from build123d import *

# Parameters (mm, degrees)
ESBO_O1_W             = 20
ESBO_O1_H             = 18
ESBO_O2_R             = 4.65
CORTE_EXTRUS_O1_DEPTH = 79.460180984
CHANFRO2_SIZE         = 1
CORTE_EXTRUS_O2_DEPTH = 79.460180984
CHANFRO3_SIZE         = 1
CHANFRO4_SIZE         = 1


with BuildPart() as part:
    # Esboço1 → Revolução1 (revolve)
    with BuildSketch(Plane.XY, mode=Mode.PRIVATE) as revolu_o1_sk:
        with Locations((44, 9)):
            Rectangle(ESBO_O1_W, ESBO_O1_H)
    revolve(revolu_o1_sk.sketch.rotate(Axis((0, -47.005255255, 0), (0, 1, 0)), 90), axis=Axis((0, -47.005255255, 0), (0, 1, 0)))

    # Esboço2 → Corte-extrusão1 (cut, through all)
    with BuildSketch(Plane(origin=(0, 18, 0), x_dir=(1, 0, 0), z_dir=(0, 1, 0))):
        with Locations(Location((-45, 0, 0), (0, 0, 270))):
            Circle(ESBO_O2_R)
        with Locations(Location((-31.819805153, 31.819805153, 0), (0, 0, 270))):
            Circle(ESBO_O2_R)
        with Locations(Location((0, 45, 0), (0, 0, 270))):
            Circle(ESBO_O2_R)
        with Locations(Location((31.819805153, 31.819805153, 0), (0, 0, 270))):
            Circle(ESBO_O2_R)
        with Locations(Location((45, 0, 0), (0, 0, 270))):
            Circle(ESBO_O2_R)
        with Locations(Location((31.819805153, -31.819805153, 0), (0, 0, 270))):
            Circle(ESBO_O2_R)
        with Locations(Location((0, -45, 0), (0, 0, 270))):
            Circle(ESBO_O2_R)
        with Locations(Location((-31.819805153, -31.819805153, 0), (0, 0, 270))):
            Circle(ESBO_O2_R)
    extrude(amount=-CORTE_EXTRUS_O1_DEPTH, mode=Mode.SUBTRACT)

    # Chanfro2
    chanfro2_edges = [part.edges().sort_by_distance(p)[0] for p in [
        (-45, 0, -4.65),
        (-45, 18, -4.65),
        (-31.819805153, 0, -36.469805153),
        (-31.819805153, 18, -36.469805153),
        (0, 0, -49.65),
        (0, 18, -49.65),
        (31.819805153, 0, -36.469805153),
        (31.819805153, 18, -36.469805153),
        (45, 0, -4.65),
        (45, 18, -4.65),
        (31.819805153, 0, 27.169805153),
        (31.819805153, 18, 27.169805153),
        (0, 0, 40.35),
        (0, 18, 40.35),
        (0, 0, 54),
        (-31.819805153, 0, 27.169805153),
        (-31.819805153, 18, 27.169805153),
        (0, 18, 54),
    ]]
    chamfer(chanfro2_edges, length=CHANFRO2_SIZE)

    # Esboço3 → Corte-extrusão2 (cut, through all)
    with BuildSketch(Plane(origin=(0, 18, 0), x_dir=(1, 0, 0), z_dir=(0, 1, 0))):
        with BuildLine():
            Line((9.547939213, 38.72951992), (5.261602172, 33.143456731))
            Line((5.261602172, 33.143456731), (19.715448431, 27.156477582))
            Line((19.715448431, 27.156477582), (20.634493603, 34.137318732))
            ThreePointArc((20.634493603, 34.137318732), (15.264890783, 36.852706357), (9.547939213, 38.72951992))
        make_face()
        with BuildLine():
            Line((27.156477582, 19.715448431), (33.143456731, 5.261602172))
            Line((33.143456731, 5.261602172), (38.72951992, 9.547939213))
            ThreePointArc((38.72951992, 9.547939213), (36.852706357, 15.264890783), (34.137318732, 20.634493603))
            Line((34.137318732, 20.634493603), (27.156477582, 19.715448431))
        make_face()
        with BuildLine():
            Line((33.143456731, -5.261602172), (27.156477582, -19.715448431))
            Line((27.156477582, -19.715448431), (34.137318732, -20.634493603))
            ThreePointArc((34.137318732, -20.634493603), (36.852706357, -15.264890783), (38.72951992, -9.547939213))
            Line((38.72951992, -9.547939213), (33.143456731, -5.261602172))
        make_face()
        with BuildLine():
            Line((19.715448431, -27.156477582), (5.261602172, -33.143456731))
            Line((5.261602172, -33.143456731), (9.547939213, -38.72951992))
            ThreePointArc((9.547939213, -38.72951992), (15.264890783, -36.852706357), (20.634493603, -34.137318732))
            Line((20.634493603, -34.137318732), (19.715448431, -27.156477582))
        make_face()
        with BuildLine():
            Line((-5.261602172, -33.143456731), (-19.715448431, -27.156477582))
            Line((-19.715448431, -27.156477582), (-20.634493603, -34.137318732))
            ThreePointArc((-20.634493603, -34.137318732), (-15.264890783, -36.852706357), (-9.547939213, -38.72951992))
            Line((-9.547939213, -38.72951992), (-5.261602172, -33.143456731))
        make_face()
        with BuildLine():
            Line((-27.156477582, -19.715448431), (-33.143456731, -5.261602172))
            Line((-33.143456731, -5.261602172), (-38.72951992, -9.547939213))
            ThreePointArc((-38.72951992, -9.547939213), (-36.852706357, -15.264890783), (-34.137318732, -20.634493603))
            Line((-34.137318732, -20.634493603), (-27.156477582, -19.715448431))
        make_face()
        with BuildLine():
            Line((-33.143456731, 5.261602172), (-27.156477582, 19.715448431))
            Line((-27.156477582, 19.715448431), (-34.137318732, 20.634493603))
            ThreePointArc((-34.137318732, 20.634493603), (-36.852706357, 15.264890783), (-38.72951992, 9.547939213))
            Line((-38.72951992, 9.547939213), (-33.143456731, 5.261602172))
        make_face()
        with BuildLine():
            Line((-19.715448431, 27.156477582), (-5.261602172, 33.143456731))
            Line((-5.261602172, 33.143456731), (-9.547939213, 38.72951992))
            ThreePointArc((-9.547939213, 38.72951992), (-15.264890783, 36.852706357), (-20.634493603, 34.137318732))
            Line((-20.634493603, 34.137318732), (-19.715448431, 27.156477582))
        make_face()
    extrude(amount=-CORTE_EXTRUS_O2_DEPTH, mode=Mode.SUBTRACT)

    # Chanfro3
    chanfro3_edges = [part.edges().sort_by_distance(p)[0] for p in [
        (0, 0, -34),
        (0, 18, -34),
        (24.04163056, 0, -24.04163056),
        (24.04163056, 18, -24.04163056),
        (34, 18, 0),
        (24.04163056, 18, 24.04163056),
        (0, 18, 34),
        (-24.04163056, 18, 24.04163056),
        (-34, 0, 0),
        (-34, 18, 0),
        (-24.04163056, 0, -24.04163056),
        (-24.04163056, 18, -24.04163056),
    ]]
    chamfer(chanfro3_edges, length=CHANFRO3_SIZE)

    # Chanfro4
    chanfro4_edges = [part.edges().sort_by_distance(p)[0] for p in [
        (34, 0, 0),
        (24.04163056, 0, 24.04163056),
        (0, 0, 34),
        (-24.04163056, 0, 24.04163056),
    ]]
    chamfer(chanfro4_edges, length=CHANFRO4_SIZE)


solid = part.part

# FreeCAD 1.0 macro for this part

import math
import FreeCAD as App
import Part
import Sketcher

V = App.Vector
Q = App.Units.Quantity


def edges_at(feature, points):
    """Names of the edges that pass closest to the given points."""
    edges = feature.Shape.Edges
    near = lambda p: min(range(len(edges)), key=lambda i: edges[i].distToShape(Part.Vertex(*p))[0])
    return sorted({f"Edge{near(p) + 1}" for p in points})

doc = App.newDocument("Part")
body = doc.addObject("PartDesign::Body", "Body")

sketch1 = body.newObject("Sketcher::SketchObject", "Sketch")
sketch1.AttachmentSupport = (doc.getObject("XY_Plane"), [""])
sketch1.MapMode = "FlatFace"
sketch1.addGeometry(Part.LineSegment(V(34, 18, 0), V(34, 0, 0)), False)
sketch1.addGeometry(Part.LineSegment(V(34, 0, 0), V(54, 0, 0)), False)
sketch1.addGeometry(Part.LineSegment(V(54, 0, 0), V(54, 18, 0)), False)
sketch1.addGeometry(Part.LineSegment(V(54, 18, 0), V(34, 18, 0)), False)
sketch1.addConstraint(Sketcher.Constraint("Coincident", 0, 2, 1, 1))
sketch1.addConstraint(Sketcher.Constraint("Coincident", 1, 2, 2, 1))
sketch1.addConstraint(Sketcher.Constraint("Coincident", 2, 2, 3, 1))
sketch1.addConstraint(Sketcher.Constraint("Coincident", 3, 2, 0, 1))
sketch1.addConstraint(Sketcher.Constraint("Vertical", 0))
sketch1.addConstraint(Sketcher.Constraint("Horizontal", 1))
sketch1.addConstraint(Sketcher.Constraint("Vertical", 2))
sketch1.addConstraint(Sketcher.Constraint("Horizontal", 3))
sketch1.addConstraint(Sketcher.Constraint("PointOnObject", 0, 2, -1))
sketch1.addConstraint(Sketcher.Constraint("DistanceX", 1, 1, 1, 2, Q("20 mm")))
sketch1.addConstraint(Sketcher.Constraint("DistanceY", 0, 2, 0, 1, Q("18 mm")))
sketch1.addConstraint(Sketcher.Constraint("DistanceX", -1, 1, 0, 2, Q("34 mm")))
revolution = body.newObject("PartDesign::Revolution", "Revolution")
revolution.Profile = sketch1
revolution.ReferenceAxis = (sketch1, ["V_Axis"])
revolution.Angle = 360

sketch2 = body.newObject("Sketcher::SketchObject", "Sketch001")
sketch2.AttachmentSupport = (doc.getObject("XZ_Plane"), [""])
sketch2.MapMode = "FlatFace"
sketch2.AttachmentOffset = App.Placement(V(0, 0, -18), App.Rotation())
sketch2.addGeometry(Part.Circle(V(-45, 0, 0), V(0, 0, 1), 4.65), False)
sketch2.addGeometry(Part.Circle(V(-31.819805, -31.819805, 0), V(0, 0, 1), 4.65), False)
sketch2.addGeometry(Part.Circle(V(0, -45, 0), V(0, 0, 1), 4.65), False)
sketch2.addGeometry(Part.Circle(V(31.819805, -31.819805, 0), V(0, 0, 1), 4.65), False)
sketch2.addGeometry(Part.Circle(V(45, 0, 0), V(0, 0, 1), 4.65), False)
sketch2.addGeometry(Part.Circle(V(31.819805, 31.819805, 0), V(0, 0, 1), 4.65), False)
sketch2.addGeometry(Part.Circle(V(0, 45, 0), V(0, 0, 1), 4.65), False)
sketch2.addGeometry(Part.Circle(V(-31.819805, 31.819805, 0), V(0, 0, 1), 4.65), False)
sketch2.addConstraint(Sketcher.Constraint("Equal", 0, 1))
sketch2.addConstraint(Sketcher.Constraint("Equal", 1, 2))
sketch2.addConstraint(Sketcher.Constraint("Equal", 2, 3))
sketch2.addConstraint(Sketcher.Constraint("Equal", 3, 4))
sketch2.addConstraint(Sketcher.Constraint("Equal", 4, 5))
sketch2.addConstraint(Sketcher.Constraint("Equal", 5, 6))
sketch2.addConstraint(Sketcher.Constraint("Equal", 6, 7))
sketch2.addConstraint(Sketcher.Constraint("Symmetric", 0, 3, 4, 3, -1, 1))
sketch2.addConstraint(Sketcher.Constraint("Symmetric", 1, 3, 5, 3, -1, 1))
sketch2.addConstraint(Sketcher.Constraint("Symmetric", 2, 3, 6, 3, -1, 1))
sketch2.addConstraint(Sketcher.Constraint("Symmetric", 3, 3, 7, 3, -1, 1))
sketch2.addConstraint(Sketcher.Constraint("Symmetric", 1, 3, 3, 3, -2))
sketch2.addConstraint(Sketcher.Constraint("PointOnObject", 0, 3, -1))
sketch2.addConstraint(Sketcher.Constraint("PointOnObject", 2, 3, -2))
sketch2.addConstraint(Sketcher.Constraint("Diameter", 0, Q("9.3 mm")))
sketch2.addConstraint(Sketcher.Constraint("DistanceX", 0, 3, -1, 1, Q("45 mm")))
sketch2.addConstraint(Sketcher.Constraint("DistanceY", 2, 3, -1, 1, Q("45 mm")))
sketch2.addConstraint(Sketcher.Constraint("DistanceX", 1, 3, 3, 3, Q("63.63961 mm")))
sketch2.addConstraint(Sketcher.Constraint("DistanceY", 3, 3, 5, 3, Q("63.63961 mm")))
pocket1 = body.newObject("PartDesign::Pocket", "Pocket")
pocket1.Profile = sketch2
pocket1.Type = "ThroughAll"
pocket1.Reversed = True
doc.recompute()

chamfer = body.newObject("PartDesign::Chamfer", "Chamfer")
chamfer.Base = (pocket1, edges_at(pocket1, [
    (-45, 0, -4.65),
    (-45, 18, -4.65),
    (-31.82, 0, -36.47),
    (-31.82, 18, -36.47),
    (0, 0, -49.65),
    (0, 18, -49.65),
    (31.82, 0, -36.47),
    (31.82, 18, -36.47),
    (45, 0, -4.65),
    (45, 18, -4.65),
    (31.82, 0, 27.17),
    (31.82, 18, 27.17),
    (0, 0, 40.35),
    (0, 18, 40.35),
    (0, 0, 54),
    (-31.82, 0, 27.17),
    (-31.82, 18, 27.17),
    (0, 18, 54),
]))
chamfer.Size = 1

sketch3 = body.newObject("Sketcher::SketchObject", "Sketch002")
sketch3.AttachmentSupport = (doc.getObject("XZ_Plane"), [""])
sketch3.MapMode = "FlatFace"
sketch3.AttachmentOffset = App.Placement(V(0, 0, -18), App.Rotation())
sketch3.addGeometry(Part.LineSegment(V(9.547939, -38.72952, 0), V(5.261602, -33.143457, 0)), False)
sketch3.addGeometry(Part.LineSegment(V(5.261602, -33.143457, 0), V(19.715448, -27.156478, 0)), False)
sketch3.addGeometry(Part.LineSegment(V(19.715448, -27.156478, 0), V(20.634494, -34.137319, 0)), False)
sketch3.addGeometry(Part.ArcOfCircle(Part.Circle(V(0, 0, 0), V(0, 0, 1), 39.889082), math.radians(-76.151099), math.radians(-58.848901)), False)
sketch3.addGeometry(Part.LineSegment(V(27.156478, -19.715448, 0), V(33.143457, -5.261602, 0)), False)
sketch3.addGeometry(Part.LineSegment(V(33.143457, -5.261602, 0), V(38.72952, -9.547939, 0)), False)
sketch3.addGeometry(Part.ArcOfCircle(Part.Circle(V(0, 0, 0), V(0, 0, 1), 39.889082), math.radians(-31.151099), math.radians(-13.848901)), False)
sketch3.addGeometry(Part.LineSegment(V(34.137319, -20.634494, 0), V(27.156478, -19.715448, 0)), False)
sketch3.addGeometry(Part.LineSegment(V(33.143457, 5.261602, 0), V(27.156478, 19.715448, 0)), False)
sketch3.addGeometry(Part.LineSegment(V(27.156478, 19.715448, 0), V(34.137319, 20.634494, 0)), False)
sketch3.addGeometry(Part.ArcOfCircle(Part.Circle(V(0, 0, 0), V(0, 0, 1), 39.889082), math.radians(13.848901), math.radians(31.151099)), False)
sketch3.addGeometry(Part.LineSegment(V(38.72952, 9.547939, 0), V(33.143457, 5.261602, 0)), False)
sketch3.addGeometry(Part.LineSegment(V(19.715448, 27.156478, 0), V(5.261602, 33.143457, 0)), False)
sketch3.addGeometry(Part.LineSegment(V(5.261602, 33.143457, 0), V(9.547939, 38.72952, 0)), False)
sketch3.addGeometry(Part.ArcOfCircle(Part.Circle(V(0, 0, 0), V(0, 0, 1), 39.889082), math.radians(58.848901), math.radians(76.151099)), False)
sketch3.addGeometry(Part.LineSegment(V(20.634494, 34.137319, 0), V(19.715448, 27.156478, 0)), False)
sketch3.addGeometry(Part.LineSegment(V(-5.261602, 33.143457, 0), V(-19.715448, 27.156478, 0)), False)
sketch3.addGeometry(Part.LineSegment(V(-19.715448, 27.156478, 0), V(-20.634494, 34.137319, 0)), False)
sketch3.addGeometry(Part.ArcOfCircle(Part.Circle(V(0, 0, 0), V(0, 0, 1), 39.889082), math.radians(103.848901), math.radians(121.151099)), False)
sketch3.addGeometry(Part.LineSegment(V(-9.547939, 38.72952, 0), V(-5.261602, 33.143457, 0)), False)
sketch3.addGeometry(Part.LineSegment(V(-27.156478, 19.715448, 0), V(-33.143457, 5.261602, 0)), False)
sketch3.addGeometry(Part.LineSegment(V(-33.143457, 5.261602, 0), V(-38.72952, 9.547939, 0)), False)
sketch3.addGeometry(Part.ArcOfCircle(Part.Circle(V(0, 0, 0), V(0, 0, 1), 39.889082), math.radians(148.848901), math.radians(166.151099)), False)
sketch3.addGeometry(Part.LineSegment(V(-34.137319, 20.634494, 0), V(-27.156478, 19.715448, 0)), False)
sketch3.addGeometry(Part.LineSegment(V(-33.143457, -5.261602, 0), V(-27.156478, -19.715448, 0)), False)
sketch3.addGeometry(Part.LineSegment(V(-27.156478, -19.715448, 0), V(-34.137319, -20.634494, 0)), False)
sketch3.addGeometry(Part.ArcOfCircle(Part.Circle(V(0, 0, 0), V(0, 0, 1), 39.889082), math.radians(-166.151099), math.radians(-148.848901)), False)
sketch3.addGeometry(Part.LineSegment(V(-38.72952, -9.547939, 0), V(-33.143457, -5.261602, 0)), False)
sketch3.addGeometry(Part.LineSegment(V(-19.715448, -27.156478, 0), V(-5.261602, -33.143457, 0)), False)
sketch3.addGeometry(Part.LineSegment(V(-5.261602, -33.143457, 0), V(-9.547939, -38.72952, 0)), False)
sketch3.addGeometry(Part.ArcOfCircle(Part.Circle(V(0, 0, 0), V(0, 0, 1), 39.889082), math.radians(-121.151099), math.radians(-103.848901)), False)
sketch3.addGeometry(Part.LineSegment(V(-20.634494, -34.137319, 0), V(-19.715448, -27.156478, 0)), False)
sketch3.addConstraint(Sketcher.Constraint("Coincident", 0, 2, 1, 1))
sketch3.addConstraint(Sketcher.Constraint("Coincident", 1, 2, 2, 1))
sketch3.addConstraint(Sketcher.Constraint("Coincident", 2, 2, 3, 2))
sketch3.addConstraint(Sketcher.Constraint("Coincident", 3, 1, 0, 1))
sketch3.addConstraint(Sketcher.Constraint("Coincident", 4, 2, 5, 1))
sketch3.addConstraint(Sketcher.Constraint("Coincident", 5, 2, 6, 2))
sketch3.addConstraint(Sketcher.Constraint("Coincident", 6, 1, 7, 1))
sketch3.addConstraint(Sketcher.Constraint("Coincident", 7, 2, 4, 1))
sketch3.addConstraint(Sketcher.Constraint("Coincident", 8, 2, 9, 1))
sketch3.addConstraint(Sketcher.Constraint("Coincident", 9, 2, 10, 2))
sketch3.addConstraint(Sketcher.Constraint("Coincident", 10, 1, 11, 1))
sketch3.addConstraint(Sketcher.Constraint("Coincident", 11, 2, 8, 1))
sketch3.addConstraint(Sketcher.Constraint("Coincident", 12, 2, 13, 1))
sketch3.addConstraint(Sketcher.Constraint("Coincident", 13, 2, 14, 2))
sketch3.addConstraint(Sketcher.Constraint("Coincident", 14, 1, 15, 1))
sketch3.addConstraint(Sketcher.Constraint("Coincident", 15, 2, 12, 1))
sketch3.addConstraint(Sketcher.Constraint("Coincident", 16, 2, 17, 1))
sketch3.addConstraint(Sketcher.Constraint("Coincident", 17, 2, 18, 2))
sketch3.addConstraint(Sketcher.Constraint("Coincident", 18, 1, 19, 1))
sketch3.addConstraint(Sketcher.Constraint("Coincident", 19, 2, 16, 1))
sketch3.addConstraint(Sketcher.Constraint("Coincident", 20, 2, 21, 1))
sketch3.addConstraint(Sketcher.Constraint("Coincident", 21, 2, 22, 2))
sketch3.addConstraint(Sketcher.Constraint("Coincident", 22, 1, 23, 1))
sketch3.addConstraint(Sketcher.Constraint("Coincident", 23, 2, 20, 1))
sketch3.addConstraint(Sketcher.Constraint("Coincident", 24, 2, 25, 1))
sketch3.addConstraint(Sketcher.Constraint("Coincident", 25, 2, 26, 2))
sketch3.addConstraint(Sketcher.Constraint("Coincident", 26, 1, 27, 1))
sketch3.addConstraint(Sketcher.Constraint("Coincident", 27, 2, 24, 1))
sketch3.addConstraint(Sketcher.Constraint("Coincident", 28, 2, 29, 1))
sketch3.addConstraint(Sketcher.Constraint("Coincident", 29, 2, 30, 2))
sketch3.addConstraint(Sketcher.Constraint("Coincident", 30, 1, 31, 1))
sketch3.addConstraint(Sketcher.Constraint("Coincident", 31, 2, 28, 1))
sketch3.addConstraint(Sketcher.Constraint("Coincident", 3, 3, -1, 1))
sketch3.addConstraint(Sketcher.Constraint("Coincident", 6, 3, -1, 1))
sketch3.addConstraint(Sketcher.Constraint("Coincident", 10, 3, -1, 1))
sketch3.addConstraint(Sketcher.Constraint("Coincident", 14, 3, -1, 1))
sketch3.addConstraint(Sketcher.Constraint("Coincident", 18, 3, -1, 1))
sketch3.addConstraint(Sketcher.Constraint("Coincident", 22, 3, -1, 1))
sketch3.addConstraint(Sketcher.Constraint("Coincident", 26, 3, -1, 1))
sketch3.addConstraint(Sketcher.Constraint("Coincident", 30, 3, -1, 1))
sketch3.addConstraint(Sketcher.Constraint("Equal", 3, 6))
sketch3.addConstraint(Sketcher.Constraint("Equal", 6, 10))
sketch3.addConstraint(Sketcher.Constraint("Equal", 10, 14))
sketch3.addConstraint(Sketcher.Constraint("Equal", 14, 18))
sketch3.addConstraint(Sketcher.Constraint("Equal", 18, 22))
sketch3.addConstraint(Sketcher.Constraint("Equal", 22, 26))
sketch3.addConstraint(Sketcher.Constraint("Equal", 26, 30))
sketch3.addConstraint(Sketcher.Constraint("Symmetric", 1, 2, 16, 2, -1, 1))
sketch3.addConstraint(Sketcher.Constraint("Symmetric", 0, 2, 19, 2, -1, 1))
sketch3.addConstraint(Sketcher.Constraint("Symmetric", 4, 2, 20, 2, -1, 1))
sketch3.addConstraint(Sketcher.Constraint("Symmetric", 7, 2, 23, 2, -1, 1))
sketch3.addConstraint(Sketcher.Constraint("Symmetric", 8, 2, 24, 2, -1, 1))
sketch3.addConstraint(Sketcher.Constraint("Symmetric", 11, 2, 27, 2, -1, 1))
sketch3.addConstraint(Sketcher.Constraint("Symmetric", 12, 2, 28, 2, -1, 1))
sketch3.addConstraint(Sketcher.Constraint("Symmetric", 15, 2, 31, 2, -1, 1))
sketch3.addConstraint(Sketcher.Constraint("Symmetric", 15, 2, 16, 2, -2))
sketch3.addConstraint(Sketcher.Constraint("Symmetric", 12, 2, 19, 2, -2))
sketch3.addConstraint(Sketcher.Constraint("Symmetric", 11, 2, 20, 2, -2))
sketch3.addConstraint(Sketcher.Constraint("Symmetric", 8, 2, 23, 2, -2))
sketch3.addConstraint(Sketcher.Constraint("Perpendicular", 1, 8))
sketch3.addConstraint(Sketcher.Constraint("Perpendicular", 2, 9))
sketch3.addConstraint(Sketcher.Constraint("Perpendicular", 0, 11))
sketch3.addConstraint(Sketcher.Constraint("Perpendicular", 5, 13))
sketch3.addConstraint(Sketcher.Constraint("Perpendicular", 7, 15))
sketch3.addConstraint(Sketcher.Constraint("Perpendicular", 9, 17))
sketch3.addConstraint(Sketcher.Constraint("Perpendicular", 11, 19))
sketch3.addConstraint(Sketcher.Constraint("Perpendicular", 13, 21))
sketch3.addConstraint(Sketcher.Constraint("Perpendicular", 15, 23))
sketch3.addConstraint(Sketcher.Constraint("Perpendicular", 17, 25))
sketch3.addConstraint(Sketcher.Constraint("Perpendicular", 19, 27))
sketch3.addConstraint(Sketcher.Constraint("Perpendicular", 21, 29))
sketch3.addConstraint(Sketcher.Constraint("Perpendicular", 23, 31))
sketch3.addConstraint(Sketcher.Constraint("Horizontal", 14, 1, 17, 2))
sketch3.addConstraint(Sketcher.Constraint("Horizontal", 13, 2, 18, 1))
sketch3.addConstraint(Sketcher.Constraint("Equal", 0, 2))
sketch3.addConstraint(Sketcher.Constraint("Equal", 1, 4))
sketch3.addConstraint(Sketcher.Constraint("Equal", 2, 5))
sketch3.addConstraint(Sketcher.Constraint("Equal", 5, 7))
sketch3.addConstraint(Sketcher.Constraint("Angle", 0, Q("127.5 deg")))
sketch3.addConstraint(Sketcher.Constraint("Angle", 1, Q("22.5 deg")))
sketch3.addConstraint(Sketcher.Constraint("Angle", 2, Q("-82.5 deg")))
sketch3.addConstraint(Sketcher.Constraint("Radius", 3, Q("39.889082 mm")))
sketch3.addConstraint(Sketcher.Constraint("DistanceY", 3, 1, 2, 2, Q("4.592201 mm")))
sketch3.addConstraint(Sketcher.Constraint("Distance", 0, Q("7.041079 mm")))
pocket2 = body.newObject("PartDesign::Pocket", "Pocket001")
pocket2.Profile = sketch3
pocket2.Type = "ThroughAll"
pocket2.Reversed = True
doc.recompute()

chamfer2 = body.newObject("PartDesign::Chamfer", "Chamfer001")
chamfer2.Base = (pocket2, edges_at(pocket2, [
    (0, 0, -34),
    (0, 18, -34),
    (24.042, 0, -24.042),
    (24.042, 18, -24.042),
    (34, 18, 0),
    (24.042, 18, 24.042),
    (0, 18, 34),
    (-24.042, 18, 24.042),
    (-34, 0, 0),
    (-34, 18, 0),
    (-24.042, 0, -24.042),
    (-24.042, 18, -24.042),
]))
chamfer2.Size = 1
doc.recompute()

chamfer3 = body.newObject("PartDesign::Chamfer", "Chamfer002")
chamfer3.Base = (chamfer2, edges_at(chamfer2, [
    (34, 0, 0),
    (24.042, 0, 24.042),
    (0, 0, 34),
    (-24.042, 0, 24.042),
]))
chamfer3.Size = 1

doc.recompute()
